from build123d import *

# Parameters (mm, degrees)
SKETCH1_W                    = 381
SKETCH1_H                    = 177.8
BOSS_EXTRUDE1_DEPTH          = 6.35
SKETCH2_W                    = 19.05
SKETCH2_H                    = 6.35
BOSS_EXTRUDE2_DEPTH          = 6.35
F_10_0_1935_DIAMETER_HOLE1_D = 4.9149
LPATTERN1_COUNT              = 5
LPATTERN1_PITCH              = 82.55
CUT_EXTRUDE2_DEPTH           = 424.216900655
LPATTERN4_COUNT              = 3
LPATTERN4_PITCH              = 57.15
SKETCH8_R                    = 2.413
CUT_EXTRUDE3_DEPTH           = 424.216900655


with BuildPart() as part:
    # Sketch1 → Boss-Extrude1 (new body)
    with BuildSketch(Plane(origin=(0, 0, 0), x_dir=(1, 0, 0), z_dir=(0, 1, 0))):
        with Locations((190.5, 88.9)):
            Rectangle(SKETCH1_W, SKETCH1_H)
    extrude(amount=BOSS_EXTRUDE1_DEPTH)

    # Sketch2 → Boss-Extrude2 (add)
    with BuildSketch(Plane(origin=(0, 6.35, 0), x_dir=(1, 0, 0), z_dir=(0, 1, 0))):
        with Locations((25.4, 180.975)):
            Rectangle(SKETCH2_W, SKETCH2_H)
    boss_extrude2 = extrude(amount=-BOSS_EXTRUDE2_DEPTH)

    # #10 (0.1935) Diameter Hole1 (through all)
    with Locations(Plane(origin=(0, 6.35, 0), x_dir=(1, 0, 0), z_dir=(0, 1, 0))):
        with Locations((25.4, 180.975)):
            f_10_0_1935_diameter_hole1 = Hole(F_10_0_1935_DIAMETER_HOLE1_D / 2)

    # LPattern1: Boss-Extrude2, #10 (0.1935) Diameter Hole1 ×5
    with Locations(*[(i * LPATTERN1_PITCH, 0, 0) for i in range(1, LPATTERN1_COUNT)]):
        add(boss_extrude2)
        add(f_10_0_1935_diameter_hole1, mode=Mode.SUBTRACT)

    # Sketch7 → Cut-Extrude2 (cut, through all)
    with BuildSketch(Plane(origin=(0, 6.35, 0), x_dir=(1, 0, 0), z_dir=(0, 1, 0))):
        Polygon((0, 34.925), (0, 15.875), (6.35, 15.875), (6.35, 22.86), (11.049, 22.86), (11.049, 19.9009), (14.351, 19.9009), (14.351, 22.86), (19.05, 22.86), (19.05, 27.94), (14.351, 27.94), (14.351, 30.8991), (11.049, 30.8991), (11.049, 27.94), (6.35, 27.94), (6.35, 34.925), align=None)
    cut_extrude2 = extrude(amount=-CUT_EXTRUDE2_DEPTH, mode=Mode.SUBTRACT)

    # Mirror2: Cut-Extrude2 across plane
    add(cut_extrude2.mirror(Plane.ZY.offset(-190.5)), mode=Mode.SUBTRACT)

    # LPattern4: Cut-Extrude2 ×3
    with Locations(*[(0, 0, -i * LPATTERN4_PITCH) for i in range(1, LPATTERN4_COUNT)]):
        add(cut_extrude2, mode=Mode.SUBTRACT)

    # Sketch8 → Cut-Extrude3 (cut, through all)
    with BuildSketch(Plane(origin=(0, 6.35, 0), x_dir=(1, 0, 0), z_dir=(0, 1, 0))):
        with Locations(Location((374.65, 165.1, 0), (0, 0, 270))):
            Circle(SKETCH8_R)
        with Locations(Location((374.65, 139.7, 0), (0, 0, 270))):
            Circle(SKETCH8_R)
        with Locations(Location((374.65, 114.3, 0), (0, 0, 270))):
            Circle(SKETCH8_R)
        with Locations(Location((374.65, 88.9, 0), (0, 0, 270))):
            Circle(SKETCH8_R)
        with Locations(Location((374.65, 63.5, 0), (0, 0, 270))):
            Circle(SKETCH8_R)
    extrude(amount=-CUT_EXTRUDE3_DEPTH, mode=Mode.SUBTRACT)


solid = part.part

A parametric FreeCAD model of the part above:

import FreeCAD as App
import Part
import Sketcher
from FreeCAD import Vector
Q = App.Units.Quantity

doc = App.newDocument("Part")
body = doc.addObject("PartDesign::Body", "Body")

sketch1 = doc.addObject("Sketcher::SketchObject", "Sketch")
body.addObject(sketch1)
sketch1.AttachmentSupport = (doc.XZ_Plane, [""])
sketch1.MapMode = "FlatFace"
sketch1.addGeometry([
    Part.LineSegment(Vector(0, -178, 0), Vector(0, 0, 0)),
    Part.LineSegment(Vector(0, 0, 0), Vector(381, 0, 0)),
    Part.LineSegment(Vector(381, 0, 0), Vector(381, -178, 0)),
    Part.LineSegment(Vector(381, -178, 0), Vector(0, -178, 0)),
], False)
sketch1.addConstraint([
    Sketcher.Constraint("Coincident", 0, 2, 1, 1),
    Sketcher.Constraint("Coincident", 1, 2, 2, 1),
    Sketcher.Constraint("Coincident", 2, 2, 3, 1),
    Sketcher.Constraint("Coincident", 3, 2, 0, 1),
    Sketcher.Constraint("Vertical", 0),
    Sketcher.Constraint("Horizontal", 1),
    Sketcher.Constraint("Vertical", 2),
    Sketcher.Constraint("Horizontal", 3),
    Sketcher.Constraint("Coincident", 0, 2, -1, 1),
    Sketcher.Constraint("DistanceX", 1, 1, 1, 2, Q("15 in")),
    Sketcher.Constraint("DistanceY", 0, 1, 0, 2, Q("7 in")),
])
pad1 = doc.addObject("PartDesign::Pad", "Pad")
body.addObject(pad1)
pad1.Profile = sketch1
pad1.Length = Q("0.25 in")
pad1.Reversed = True

sketch2 = doc.addObject("Sketcher::SketchObject", "Sketch001")
body.addObject(sketch2)
sketch2.AttachmentSupport = (doc.XZ_Plane, [""])
sketch2.MapMode = "FlatFace"
sketch2.AttachmentOffset = App.Placement(Vector(0, 0, -0.25 * 25.4), App.Rotation())
sketch2.addGeometry([
    Part.LineSegment(Vector(16, -184, 0), Vector(16, -178, 0)),
    Part.LineSegment(Vector(16, -178, 0), Vector(35, -178, 0)),
    Part.LineSegment(Vector(35, -178, 0), Vector(35, -184, 0)),
    Part.LineSegment(Vector(35, -184, 0), Vector(16, -184, 0)),
], False)
sketch2.addConstraint([
    Sketcher.Constraint("Coincident", 0, 2, 1, 1),
    Sketcher.Constraint("Coincident", 1, 2, 2, 1),
    Sketcher.Constraint("Coincident", 2, 2, 3, 1),
    Sketcher.Constraint("Coincident", 3, 2, 0, 1),
    Sketcher.Constraint("Vertical", 0),
    Sketcher.Constraint("Horizontal", 1),
    Sketcher.Constraint("Vertical", 2),
    Sketcher.Constraint("Horizontal", 3),
    Sketcher.Constraint("DistanceY", 0, 2, -1, 1, Q("7 in")),
    Sketcher.Constraint("DistanceX", 1, 1, 1, 2, Q("0.75 in")),
    Sketcher.Constraint("DistanceY", 0, 1, 0, 2, Q("0.25 in")),
    Sketcher.Constraint("DistanceX", -1, 1, 0, 2, Q("0.625 in")),
])
pad2 = doc.addObject("PartDesign::Pad", "Pad001")
body.addObject(pad2)
pad2.Profile = sketch2
pad2.Length = Q("0.25 in")

sketch3 = doc.addObject("Sketcher::SketchObject", "Sketch002")
body.addObject(sketch3)
sketch3.AttachmentSupport = (doc.XZ_Plane, [""])
sketch3.MapMode = "FlatFace"
sketch3.AttachmentOffset = App.Placement(Vector(0, 0, -0.25 * 25.4), App.Rotation())
sketch3.addGeometry(Part.Circle(Vector(25.4, -181, 0), Vector(0, 0, 1), 2.5), False)
sketch3.addConstraint([
    Sketcher.Constraint("DistanceX", -1, 1, 0, 3, Q("1 in")),
    Sketcher.Constraint("Diameter", 0, Q("0.1935 in")),
    Sketcher.Constraint("DistanceY", 0, 3, -1, 1, Q("7.125 in")),
])
doc.recompute()
hole = doc.addObject("PartDesign::Hole", "Hole")
body.addObject(hole)
hole.Profile = sketch3
hole.ThreadType = "None"
hole.Diameter = Q("0.1935 in")
hole.DepthType = "ThroughAll"
hole.Reversed = True
doc.recompute()

linearpattern = doc.addObject("PartDesign::LinearPattern", "LinearPattern")
body.addObject(linearpattern)
linearpattern.Originals = [pad2, hole]
linearpattern.Direction = (doc.X_Axis, [""])
linearpattern.Mode = "offset"
linearpattern.Offset = Q("3.25 in")
linearpattern.Occurrences = 5
body.Tip = linearpattern

sketch4 = doc.addObject("Sketcher::SketchObject", "Sketch003")
body.addObject(sketch4)
sketch4.AttachmentSupport = (doc.XZ_Plane, [""])
sketch4.MapMode = "FlatFace"
sketch4.AttachmentOffset = App.Placement(Vector(0, 0, -0.25 * 25.4), App.Rotation())
sketch4.addGeometry([
    Part.LineSegment(Vector(0, -34.9, 0), Vector(0, -15.9, 0)),
    Part.LineSegment(Vector(0, -15.9, 0), Vector(6.3, -15.9, 0)),
    Part.LineSegment(Vector(6.3, -15.9, 0), Vector(6.3, -22.9, 0)),
    Part.LineSegment(Vector(6.3, -22.9, 0), Vector(11, -22.9, 0)),
    Part.LineSegment(Vector(11, -22.9, 0), Vector(11, -19.9, 0)),
    Part.LineSegment(Vector(11, -19.9, 0), Vector(14.4, -19.9, 0)),
    Part.LineSegment(Vector(14.4, -19.9, 0), Vector(14.4, -22.9, 0)),
    Part.LineSegment(Vector(14.4, -22.9, 0), Vector(19.1, -22.9, 0)),
    Part.LineSegment(Vector(19.1, -22.9, 0), Vector(19.1, -27.9, 0)),
    Part.LineSegment(Vector(19.1, -27.9, 0), Vector(14.4, -27.9, 0)),
    Part.LineSegment(Vector(14.4, -27.9, 0), Vector(14.4, -30.9, 0)),
    Part.LineSegment(Vector(14.4, -30.9, 0), Vector(11, -30.9, 0)),
    Part.LineSegment(Vector(11, -30.9, 0), Vector(11, -27.9, 0)),
    Part.LineSegment(Vector(11, -27.9, 0), Vector(6.3, -27.9, 0)),
    Part.LineSegment(Vector(6.3, -27.9, 0), Vector(6.3, -34.9, 0)),
    Part.LineSegment(Vector(6.3, -34.9, 0), Vector(0, -34.9, 0)),
], False)
sketch4.addConstraint([
    Sketcher.Constraint("Coincident", 0, 2, 1, 1),
    Sketcher.Constraint("Coincident", 1, 2, 2, 1),
    Sketcher.Constraint("Coincident", 2, 2, 3, 1),
    Sketcher.Constraint("Coincident", 3, 2, 4, 1),
    Sketcher.Constraint("Coincident", 4, 2, 5, 1),
    Sketcher.Constraint("Coincident", 5, 2, 6, 1),
    Sketcher.Constraint("Coincident", 6, 2, 7, 1),
    Sketcher.Constraint("Coincident", 7, 2, 8, 1),
    Sketcher.Constraint("Coincident", 8, 2, 9, 1),
    Sketcher.Constraint("Coincident", 9, 2, 10, 1),
    Sketcher.Constraint("Coincident", 10, 2, 11, 1),
    Sketcher.Constraint("Coincident", 11, 2, 12, 1),
    Sketcher.Constraint("Coincident", 12, 2, 13, 1),
    Sketcher.Constraint("Coincident", 13, 2, 14, 1),
    Sketcher.Constraint("Coincident", 14, 2, 15, 1),
    Sketcher.Constraint("Coincident", 15, 2, 0, 1),
    Sketcher.Constraint("Vertical", 0),
    Sketcher.Constraint("Horizontal", 1),
    Sketcher.Constraint("Vertical", 2),
    Sketcher.Constraint("Horizontal", 3),
    Sketcher.Constraint("Vertical", 4),
    Sketcher.Constraint("Horizontal", 5),
    Sketcher.Constraint("Vertical", 6),
    Sketcher.Constraint("Horizontal", 7),
    Sketcher.Constraint("Vertical", 8),
    Sketcher.Constraint("Horizontal", 9),
    Sketcher.Constraint("Vertical", 10),
    Sketcher.Constraint("Horizontal", 11),
    Sketcher.Constraint("Vertical", 12),
    Sketcher.Constraint("Horizontal", 13),
    Sketcher.Constraint("Vertical", 14),
    Sketcher.Constraint("Horizontal", 15),
    Sketcher.Constraint("PointOnObject", 0, 2, -2),
    Sketcher.Constraint("Horizontal", 3, 2, 6, 2),
    Sketcher.Constraint("Horizontal", 9, 2, 12, 2),
    Sketcher.Constraint("Vertical", 6, 2, 9, 2),
    Sketcher.Constraint("Vertical", 4, 2, 11, 2),
    Sketcher.Constraint("Vertical", 2, 2, 13, 2),
    Sketcher.Constraint("Equal", 3, 7),
    Sketcher.Constraint("Equal", 6, 10),
    Sketcher.Constraint("Equal", 2, 14),
    Sketcher.Constraint("DistanceY", 8, 2, 8, 1, Q("0.2 in")),
    Sketcher.Constraint("DistanceX", 1, 1, 1, 2, Q("0.25 in")),
    Sketcher.Constraint("DistanceX", 5, 1, 5, 2, Q("0.13 in")),
    Sketcher.Constraint("DistanceY", 0, 1, 0, 2, Q("0.75 in")),
    Sketcher.Constraint("DistanceY", 2, 2, -1, 1, Q("0.9 in")),
    Sketcher.Constraint("DistanceX", 2, 2, 7, 2, Q("0.5 in")),
    Sketcher.Constraint("DistanceY", 4, 1, 4, 2, Q("0.1165 in")),
])
pocket1 = doc.addObject("PartDesign::Pocket", "Pocket")
body.addObject(pocket1)
pocket1.Profile = sketch4
pocket1.Type = "ThroughAll"
pocket1.Reversed = True
doc.recompute()

datumplane = doc.addObject("PartDesign::Plane", "DatumPlane")
body.addObject(datumplane)
datumplane.AttachmentSupport = (doc.YZ_Plane, [""])
datumplane.MapMode = "FlatFace"
datumplane.AttachmentOffset = App.Placement(Vector(0, 0, 7.5 * 25.4), App.Rotation())
mirrored = doc.addObject("PartDesign::Mirrored", "Mirrored")
body.addObject(mirrored)
mirrored.Originals = [pocket1]
mirrored.MirrorPlane = (datumplane, [""])
body.Tip = mirrored
doc.recompute()

linearpattern2 = doc.addObject("PartDesign::LinearPattern", "LinearPattern001")
body.addObject(linearpattern2)
linearpattern2.Originals = [pocket1]
linearpattern2.Direction = (doc.Z_Axis, [""])
linearpattern2.Mode = "offset"
linearpattern2.Offset = Q("2.25 in")
linearpattern2.Occurrences = 3
linearpattern2.Reversed = True
body.Tip = linearpattern2

sketch5 = doc.addObject("Sketcher::SketchObject", "Sketch004")
body.addObject(sketch5)
sketch5.AttachmentSupport = (doc.XZ_Plane, [""])
sketch5.MapMode = "FlatFace"
sketch5.AttachmentOffset = App.Placement(Vector(0, 0, -0.25 * 25.4), App.Rotation())
sketch5.addGeometry([
    Part.Circle(Vector(374.6, -165.1, 0), Vector(0, 0, 1), 2.4),
    Part.Circle(Vector(374.6, -139.7, 0), Vector(0, 0, 1), 2.4),
    Part.Circle(Vector(374.6, -114.3, 0), Vector(0, 0, 1), 2.4),
    Part.Circle(Vector(374.6, -88.9, 0), Vector(0, 0, 1), 2.4),
    Part.Circle(Vector(374.6, -63.5, 0), Vector(0, 0, 1), 2.4),
], False)
sketch5.addConstraint([
    Sketcher.Constraint("Equal", 0, 1),
    Sketcher.Constraint("Equal", 1, 2),
    Sketcher.Constraint("Equal", 2, 3),
    Sketcher.Constraint("Equal", 3, 4),
    Sketcher.Constraint("Vertical", 0, 3, 1, 3),
    Sketcher.Constraint("Vertical", 1, 3, 2, 3),
    Sketcher.Constraint("Vertical", 2, 3, 3, 3),
    Sketcher.Constraint("Vertical", 3, 3, 4, 3),
    Sketcher.Constraint("Diameter", 0, Q("0.19 in")),
    Sketcher.Constraint("DistanceY", 0, 3, 1, 3, Q("1 in")),
    Sketcher.Constraint("DistanceY", 1, 3, 2, 3, Q("1 in")),
    Sketcher.Constraint("DistanceY", 2, 3, 3, 3, Q("1 in")),
    Sketcher.Constraint("DistanceY", 3, 3, 4, 3, Q("1 in")),
    Sketcher.Constraint("DistanceY", 0, 3, -1, 1, Q("6.5 in")),
    Sketcher.Constraint("DistanceX", -1, 1, 0, 3, Q("14.75 in")),
])
pocket2 = doc.addObject("PartDesign::Pocket", "Pocket001")
body.addObject(pocket2)
pocket2.Profile = sketch5
pocket2.Type = "ThroughAll"
pocket2.Reversed = True

doc.recompute()
